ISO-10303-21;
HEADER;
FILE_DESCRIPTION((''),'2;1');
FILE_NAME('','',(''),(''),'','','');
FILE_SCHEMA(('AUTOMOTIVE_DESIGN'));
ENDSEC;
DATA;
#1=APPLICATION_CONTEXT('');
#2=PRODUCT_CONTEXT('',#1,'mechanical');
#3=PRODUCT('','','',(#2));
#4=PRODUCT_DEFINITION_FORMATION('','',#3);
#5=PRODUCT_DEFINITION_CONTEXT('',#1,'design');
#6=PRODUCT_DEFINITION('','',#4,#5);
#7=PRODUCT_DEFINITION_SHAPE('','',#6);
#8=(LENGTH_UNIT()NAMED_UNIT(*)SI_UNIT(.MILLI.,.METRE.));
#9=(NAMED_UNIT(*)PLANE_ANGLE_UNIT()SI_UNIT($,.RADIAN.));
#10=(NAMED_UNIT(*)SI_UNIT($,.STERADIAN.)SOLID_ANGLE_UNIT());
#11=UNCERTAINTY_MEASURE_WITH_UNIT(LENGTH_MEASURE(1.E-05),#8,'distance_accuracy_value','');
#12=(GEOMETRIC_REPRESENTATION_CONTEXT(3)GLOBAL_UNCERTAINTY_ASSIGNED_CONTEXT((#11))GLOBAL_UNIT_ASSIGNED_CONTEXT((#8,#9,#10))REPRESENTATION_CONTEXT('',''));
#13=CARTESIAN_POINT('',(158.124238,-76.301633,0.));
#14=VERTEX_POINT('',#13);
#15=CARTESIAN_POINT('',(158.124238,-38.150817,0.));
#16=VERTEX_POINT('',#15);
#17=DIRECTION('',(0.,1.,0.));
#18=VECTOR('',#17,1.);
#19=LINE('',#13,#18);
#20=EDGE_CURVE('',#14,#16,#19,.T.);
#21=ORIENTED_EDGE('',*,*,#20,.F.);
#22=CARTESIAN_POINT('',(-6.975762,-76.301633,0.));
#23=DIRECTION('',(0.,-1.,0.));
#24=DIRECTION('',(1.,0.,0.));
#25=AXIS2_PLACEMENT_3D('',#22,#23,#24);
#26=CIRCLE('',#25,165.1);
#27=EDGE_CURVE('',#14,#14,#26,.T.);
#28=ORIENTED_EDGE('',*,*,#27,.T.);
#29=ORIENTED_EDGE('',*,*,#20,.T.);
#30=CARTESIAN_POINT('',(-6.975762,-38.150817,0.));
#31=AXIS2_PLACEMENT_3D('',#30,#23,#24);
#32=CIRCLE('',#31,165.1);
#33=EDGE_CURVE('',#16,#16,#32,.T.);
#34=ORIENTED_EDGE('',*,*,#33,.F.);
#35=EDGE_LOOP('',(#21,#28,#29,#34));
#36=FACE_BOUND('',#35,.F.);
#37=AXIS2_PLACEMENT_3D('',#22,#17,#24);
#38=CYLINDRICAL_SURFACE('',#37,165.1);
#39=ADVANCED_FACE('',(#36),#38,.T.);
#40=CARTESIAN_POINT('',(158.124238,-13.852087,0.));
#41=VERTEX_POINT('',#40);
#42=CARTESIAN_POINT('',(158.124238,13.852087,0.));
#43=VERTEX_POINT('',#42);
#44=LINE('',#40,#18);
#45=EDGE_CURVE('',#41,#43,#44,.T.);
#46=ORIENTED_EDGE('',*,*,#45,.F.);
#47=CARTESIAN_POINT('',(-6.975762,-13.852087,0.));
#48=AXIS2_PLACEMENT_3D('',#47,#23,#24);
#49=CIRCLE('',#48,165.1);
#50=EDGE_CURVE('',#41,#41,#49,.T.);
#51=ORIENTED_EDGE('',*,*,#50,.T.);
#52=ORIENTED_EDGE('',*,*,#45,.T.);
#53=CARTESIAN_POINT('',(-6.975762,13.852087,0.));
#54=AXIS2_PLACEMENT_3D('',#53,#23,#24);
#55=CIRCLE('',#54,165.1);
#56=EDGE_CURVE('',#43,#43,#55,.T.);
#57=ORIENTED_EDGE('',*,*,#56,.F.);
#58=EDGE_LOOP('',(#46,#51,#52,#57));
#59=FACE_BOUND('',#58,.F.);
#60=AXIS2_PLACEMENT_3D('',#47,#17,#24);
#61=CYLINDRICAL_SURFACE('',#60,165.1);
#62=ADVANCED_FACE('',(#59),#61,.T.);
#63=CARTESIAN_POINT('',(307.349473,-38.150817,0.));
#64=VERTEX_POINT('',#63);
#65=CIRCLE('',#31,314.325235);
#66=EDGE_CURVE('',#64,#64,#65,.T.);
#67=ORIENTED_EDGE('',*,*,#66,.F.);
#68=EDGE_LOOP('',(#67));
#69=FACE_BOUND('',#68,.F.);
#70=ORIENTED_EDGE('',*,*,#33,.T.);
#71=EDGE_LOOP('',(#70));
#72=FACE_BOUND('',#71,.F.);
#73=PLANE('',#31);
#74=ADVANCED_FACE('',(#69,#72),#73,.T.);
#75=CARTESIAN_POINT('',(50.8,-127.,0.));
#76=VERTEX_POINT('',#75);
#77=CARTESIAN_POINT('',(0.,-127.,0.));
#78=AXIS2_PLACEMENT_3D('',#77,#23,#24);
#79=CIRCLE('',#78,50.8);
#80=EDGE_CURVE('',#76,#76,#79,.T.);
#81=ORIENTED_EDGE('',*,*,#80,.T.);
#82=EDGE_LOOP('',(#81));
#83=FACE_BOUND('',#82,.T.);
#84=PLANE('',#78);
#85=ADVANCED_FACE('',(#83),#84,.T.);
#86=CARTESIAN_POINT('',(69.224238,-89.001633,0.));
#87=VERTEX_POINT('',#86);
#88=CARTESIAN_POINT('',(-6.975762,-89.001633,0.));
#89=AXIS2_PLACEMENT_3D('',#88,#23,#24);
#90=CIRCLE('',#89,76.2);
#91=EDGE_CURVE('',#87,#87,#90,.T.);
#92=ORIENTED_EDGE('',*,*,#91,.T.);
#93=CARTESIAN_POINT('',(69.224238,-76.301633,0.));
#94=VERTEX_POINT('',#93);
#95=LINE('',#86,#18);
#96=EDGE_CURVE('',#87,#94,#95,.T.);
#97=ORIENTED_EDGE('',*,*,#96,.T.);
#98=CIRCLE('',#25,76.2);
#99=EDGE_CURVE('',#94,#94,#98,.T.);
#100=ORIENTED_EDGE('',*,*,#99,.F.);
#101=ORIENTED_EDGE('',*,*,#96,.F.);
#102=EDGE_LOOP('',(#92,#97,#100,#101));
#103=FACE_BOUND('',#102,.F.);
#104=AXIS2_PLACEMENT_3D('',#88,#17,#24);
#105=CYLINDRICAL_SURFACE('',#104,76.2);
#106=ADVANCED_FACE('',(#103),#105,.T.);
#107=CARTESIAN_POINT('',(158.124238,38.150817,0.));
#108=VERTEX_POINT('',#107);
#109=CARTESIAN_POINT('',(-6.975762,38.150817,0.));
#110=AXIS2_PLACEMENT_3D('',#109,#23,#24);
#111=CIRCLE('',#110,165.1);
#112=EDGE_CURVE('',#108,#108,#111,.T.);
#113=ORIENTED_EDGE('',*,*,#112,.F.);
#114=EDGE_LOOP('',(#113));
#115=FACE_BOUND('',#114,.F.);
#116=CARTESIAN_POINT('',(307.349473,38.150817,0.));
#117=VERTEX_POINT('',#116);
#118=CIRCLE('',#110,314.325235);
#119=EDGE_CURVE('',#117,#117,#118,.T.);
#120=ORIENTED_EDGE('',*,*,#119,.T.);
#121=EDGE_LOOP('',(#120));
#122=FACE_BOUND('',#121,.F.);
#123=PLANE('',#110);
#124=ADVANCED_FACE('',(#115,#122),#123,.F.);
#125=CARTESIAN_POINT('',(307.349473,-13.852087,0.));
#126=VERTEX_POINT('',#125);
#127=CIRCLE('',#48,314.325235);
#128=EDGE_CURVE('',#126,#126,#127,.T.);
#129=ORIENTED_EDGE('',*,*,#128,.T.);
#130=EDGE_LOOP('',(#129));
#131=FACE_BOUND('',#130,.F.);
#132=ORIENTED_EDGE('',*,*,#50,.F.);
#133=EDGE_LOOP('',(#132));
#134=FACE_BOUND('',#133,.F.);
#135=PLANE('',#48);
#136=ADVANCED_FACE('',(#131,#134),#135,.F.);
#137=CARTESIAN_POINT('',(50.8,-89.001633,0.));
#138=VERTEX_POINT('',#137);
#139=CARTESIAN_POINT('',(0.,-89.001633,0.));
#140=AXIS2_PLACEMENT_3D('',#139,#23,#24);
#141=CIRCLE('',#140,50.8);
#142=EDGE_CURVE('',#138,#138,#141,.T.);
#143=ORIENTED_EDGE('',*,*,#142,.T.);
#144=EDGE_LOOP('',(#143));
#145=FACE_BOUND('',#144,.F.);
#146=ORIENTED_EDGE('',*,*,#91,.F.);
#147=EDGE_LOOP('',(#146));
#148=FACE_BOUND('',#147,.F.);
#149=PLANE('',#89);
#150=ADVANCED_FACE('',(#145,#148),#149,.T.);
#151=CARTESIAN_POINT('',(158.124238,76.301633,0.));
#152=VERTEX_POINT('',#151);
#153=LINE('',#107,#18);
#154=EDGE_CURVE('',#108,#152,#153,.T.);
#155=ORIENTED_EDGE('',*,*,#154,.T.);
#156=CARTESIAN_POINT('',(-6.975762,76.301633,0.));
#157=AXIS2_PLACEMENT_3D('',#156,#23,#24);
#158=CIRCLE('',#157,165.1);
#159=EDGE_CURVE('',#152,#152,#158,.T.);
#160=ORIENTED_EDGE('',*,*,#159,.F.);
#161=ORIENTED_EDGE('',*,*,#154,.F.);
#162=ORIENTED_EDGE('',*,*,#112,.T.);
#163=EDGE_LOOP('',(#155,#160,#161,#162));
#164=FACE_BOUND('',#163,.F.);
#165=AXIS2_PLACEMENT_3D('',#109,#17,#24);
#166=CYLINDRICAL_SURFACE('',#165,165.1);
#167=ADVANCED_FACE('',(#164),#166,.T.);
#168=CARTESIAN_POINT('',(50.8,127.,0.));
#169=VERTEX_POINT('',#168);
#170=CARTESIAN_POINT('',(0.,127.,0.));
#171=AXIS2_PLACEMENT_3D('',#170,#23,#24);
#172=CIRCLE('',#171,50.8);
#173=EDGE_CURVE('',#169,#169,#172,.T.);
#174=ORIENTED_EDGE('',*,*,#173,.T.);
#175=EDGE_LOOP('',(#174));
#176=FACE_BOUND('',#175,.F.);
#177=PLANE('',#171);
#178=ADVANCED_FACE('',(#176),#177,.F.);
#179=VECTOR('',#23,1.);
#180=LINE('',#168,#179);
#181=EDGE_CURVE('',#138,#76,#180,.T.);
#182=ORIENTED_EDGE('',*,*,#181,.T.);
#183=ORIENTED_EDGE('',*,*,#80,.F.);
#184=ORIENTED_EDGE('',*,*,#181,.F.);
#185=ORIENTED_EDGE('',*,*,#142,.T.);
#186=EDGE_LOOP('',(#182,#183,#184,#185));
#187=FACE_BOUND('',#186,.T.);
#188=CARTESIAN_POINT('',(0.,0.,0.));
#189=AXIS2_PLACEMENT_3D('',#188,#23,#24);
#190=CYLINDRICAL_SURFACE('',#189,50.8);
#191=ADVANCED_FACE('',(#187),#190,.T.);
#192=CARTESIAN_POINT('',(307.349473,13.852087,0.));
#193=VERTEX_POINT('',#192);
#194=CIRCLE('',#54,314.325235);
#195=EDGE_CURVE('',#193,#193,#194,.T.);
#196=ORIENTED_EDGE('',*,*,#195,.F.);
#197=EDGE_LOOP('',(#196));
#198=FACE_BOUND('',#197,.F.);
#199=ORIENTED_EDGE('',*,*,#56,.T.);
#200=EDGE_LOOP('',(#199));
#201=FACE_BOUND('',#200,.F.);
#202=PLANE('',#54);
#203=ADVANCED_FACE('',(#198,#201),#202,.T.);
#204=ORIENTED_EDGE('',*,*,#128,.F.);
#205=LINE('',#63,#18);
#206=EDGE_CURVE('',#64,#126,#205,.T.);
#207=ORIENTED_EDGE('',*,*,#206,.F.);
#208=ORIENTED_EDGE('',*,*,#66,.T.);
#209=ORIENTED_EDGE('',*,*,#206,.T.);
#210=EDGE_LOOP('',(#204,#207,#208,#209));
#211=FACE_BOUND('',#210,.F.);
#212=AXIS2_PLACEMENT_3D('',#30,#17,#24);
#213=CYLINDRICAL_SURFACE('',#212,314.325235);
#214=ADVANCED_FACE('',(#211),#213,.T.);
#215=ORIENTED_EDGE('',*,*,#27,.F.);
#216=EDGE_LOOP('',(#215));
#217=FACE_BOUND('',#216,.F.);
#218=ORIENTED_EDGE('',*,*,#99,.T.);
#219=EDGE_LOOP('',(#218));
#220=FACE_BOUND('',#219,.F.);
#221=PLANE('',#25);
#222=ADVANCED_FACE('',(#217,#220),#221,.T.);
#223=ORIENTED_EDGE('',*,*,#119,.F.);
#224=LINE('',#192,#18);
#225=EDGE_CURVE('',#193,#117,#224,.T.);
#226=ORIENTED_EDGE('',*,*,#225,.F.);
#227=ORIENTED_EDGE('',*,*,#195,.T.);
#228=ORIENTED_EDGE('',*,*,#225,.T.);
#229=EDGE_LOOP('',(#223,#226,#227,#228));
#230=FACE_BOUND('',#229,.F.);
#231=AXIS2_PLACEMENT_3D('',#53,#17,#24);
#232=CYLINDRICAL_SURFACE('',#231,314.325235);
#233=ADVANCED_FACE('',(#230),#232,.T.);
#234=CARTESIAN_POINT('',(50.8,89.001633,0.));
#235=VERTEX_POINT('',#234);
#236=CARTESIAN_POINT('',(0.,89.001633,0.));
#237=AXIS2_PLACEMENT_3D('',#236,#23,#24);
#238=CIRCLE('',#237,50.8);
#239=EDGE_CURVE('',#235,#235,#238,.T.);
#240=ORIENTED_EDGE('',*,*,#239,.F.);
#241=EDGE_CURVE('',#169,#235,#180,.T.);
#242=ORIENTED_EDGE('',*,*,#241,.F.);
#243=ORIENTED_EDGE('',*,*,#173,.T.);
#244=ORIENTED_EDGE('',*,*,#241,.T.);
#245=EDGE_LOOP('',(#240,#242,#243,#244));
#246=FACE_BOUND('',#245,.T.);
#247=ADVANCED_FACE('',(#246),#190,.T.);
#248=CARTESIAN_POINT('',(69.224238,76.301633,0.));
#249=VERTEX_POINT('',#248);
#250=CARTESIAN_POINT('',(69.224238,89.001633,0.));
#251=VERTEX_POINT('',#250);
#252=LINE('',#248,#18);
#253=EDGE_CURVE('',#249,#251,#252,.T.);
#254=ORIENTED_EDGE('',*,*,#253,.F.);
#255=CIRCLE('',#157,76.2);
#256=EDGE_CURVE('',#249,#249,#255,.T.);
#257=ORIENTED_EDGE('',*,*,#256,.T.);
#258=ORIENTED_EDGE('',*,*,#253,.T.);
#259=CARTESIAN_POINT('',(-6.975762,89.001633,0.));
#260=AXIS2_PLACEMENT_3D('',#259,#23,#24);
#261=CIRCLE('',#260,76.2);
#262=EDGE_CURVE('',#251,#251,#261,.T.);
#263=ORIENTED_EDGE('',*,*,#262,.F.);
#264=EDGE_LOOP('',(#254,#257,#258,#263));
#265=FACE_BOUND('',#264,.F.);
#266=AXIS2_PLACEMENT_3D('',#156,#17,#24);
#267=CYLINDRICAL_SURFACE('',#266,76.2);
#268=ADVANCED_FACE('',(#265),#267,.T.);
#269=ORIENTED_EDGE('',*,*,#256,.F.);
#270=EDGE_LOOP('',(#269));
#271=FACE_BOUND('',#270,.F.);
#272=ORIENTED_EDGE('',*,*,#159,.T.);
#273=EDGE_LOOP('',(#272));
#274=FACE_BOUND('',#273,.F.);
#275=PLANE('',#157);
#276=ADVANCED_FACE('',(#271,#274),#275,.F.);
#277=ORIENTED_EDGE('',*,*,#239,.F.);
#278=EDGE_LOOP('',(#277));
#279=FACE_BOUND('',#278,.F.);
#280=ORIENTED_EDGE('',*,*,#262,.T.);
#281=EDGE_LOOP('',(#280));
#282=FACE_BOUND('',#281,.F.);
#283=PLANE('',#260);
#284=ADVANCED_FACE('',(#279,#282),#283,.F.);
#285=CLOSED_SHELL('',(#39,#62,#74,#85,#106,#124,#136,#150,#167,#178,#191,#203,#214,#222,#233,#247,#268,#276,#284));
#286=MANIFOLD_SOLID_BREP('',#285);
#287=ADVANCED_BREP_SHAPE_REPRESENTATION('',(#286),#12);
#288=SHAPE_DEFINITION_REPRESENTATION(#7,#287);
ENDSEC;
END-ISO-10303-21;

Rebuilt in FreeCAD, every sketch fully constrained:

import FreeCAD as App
import Part
import Sketcher
Q = App.Units.Quantity


def add_polygon(sketch, points):
    """Adds a closed chain of lines whose ends are joined by coincident constraints."""
    first, n = sketch.GeometryCount, len(points)
    for a, b in zip(points, points[1:] + points[:1]):
        sketch.addGeometry(Part.LineSegment(App.Vector(*a, 0), App.Vector(*b, 0)), False)
    for i in range(n):
        sketch.addConstraint(Sketcher.Constraint("Coincident", first + i, 2, first + (i + 1) % n, 1))

doc = App.newDocument("Part")
body = doc.addObject("PartDesign::Body", "Body")

# Sketch on XZ plane
sketch1 = body.newObject("Sketcher::SketchObject", "Sketch")
sketch1.AttachmentSupport = (doc.getObject("XZ_Plane"), [""])
sketch1.MapMode = "FlatFace"
sketch1.addGeometry(Part.Circle(App.Vector(0, 0, 0), App.Vector(0, 0, 1), 51), False)
sketch1.addConstraint([
    Sketcher.Constraint("Coincident", 0, 3, -1, 1),
    Sketcher.Constraint("Diameter", 0, Q("4 in")),
])
pad1 = body.newObject("PartDesign::Pad", "Pad")
pad1.Profile = sketch1
pad1.Length = Q("10 in")
pad1.Midplane = True

# Sketch on XY plane
sketch2 = body.newObject("Sketcher::SketchObject", "Sketch001")
sketch2.AttachmentSupport = (doc.getObject("XY_Plane"), [""])
sketch2.MapMode = "FlatFace"
add_polygon(sketch2, [(34, -89), (69, -89), (69, -76), (158, -76), (158, -38), (307, -38), (307, -14), (158, -14), (158, 14), (307, 14), (307, 38), (158, 38), (158, 76), (69, 76), (69, 89), (34, 89)])  # lines 0-15
sketch2.addGeometry(Part.LineSegment(App.Vector(-7, 89, 0), App.Vector(-7, -89, 0)), True)  # axis
sketch2.addConstraint([
    Sketcher.Constraint("Horizontal", 0),
    Sketcher.Constraint("Vertical", 1),
    Sketcher.Constraint("Horizontal", 2),
    Sketcher.Constraint("Vertical", 3),
    Sketcher.Constraint("Horizontal", 4),
    Sketcher.Constraint("Vertical", 5),
    Sketcher.Constraint("Horizontal", 6),
    Sketcher.Constraint("Vertical", 7),
    Sketcher.Constraint("Horizontal", 8),
    Sketcher.Constraint("Vertical", 9),
    Sketcher.Constraint("Horizontal", 10),
    Sketcher.Constraint("Vertical", 11),
    Sketcher.Constraint("Horizontal", 12),
    Sketcher.Constraint("Vertical", 13),
    Sketcher.Constraint("Horizontal", 14),
    Sketcher.Constraint("Vertical", 15),
    Sketcher.Constraint("Vertical", 16),
    Sketcher.Constraint("Symmetric", 5, 2, 8, 2, -1),
    Sketcher.Constraint("Symmetric", 3, 2, 10, 2, -1),
    Sketcher.Constraint("Symmetric", 1, 2, 12, 2, -1),
    Sketcher.Constraint("Horizontal", 14, 2, 16, 1),
    Sketcher.Constraint("Horizontal", 15, 2, 16, 2),
    Sketcher.Constraint("Vertical", 3, 2, 6, 2),
    Sketcher.Constraint("Equal", 1, 13),
    Sketcher.Constraint("DistanceX", 0, 1, 0, 2, Q("1.4 in")),
    Sketcher.Constraint("DistanceX", 2, 1, 2, 2, Q("3.5 in")),
    Sketcher.Constraint("DistanceY", 1, 1, 1, 2, Q("0.5 in")),
    Sketcher.Constraint("DistanceX", 16, 1, 13, 2, Q("3 in")),
    Sketcher.Constraint("DistanceY", 5, 1, 5, 2, Q("24.29873 mm")),
    Sketcher.Constraint("DistanceX", 4, 1, 4, 2, Q("149.225235 mm")),
    Sketcher.Constraint("DistanceY", 3, 1, 3, 2, Q("38.150816 mm")),
    Sketcher.Constraint("DistanceY", 7, 1, 7, 2, Q("27.704174 mm")),
    Sketcher.Constraint("DistanceX", -1, 1, 0, 2, Q("69.224238 mm")),
])
revolution = body.newObject("PartDesign::Revolution", "Revolution")
revolution.Profile = sketch2
revolution.ReferenceAxis = (sketch2, ["Axis0"])
revolution.Angle = 360

doc.recompute()
